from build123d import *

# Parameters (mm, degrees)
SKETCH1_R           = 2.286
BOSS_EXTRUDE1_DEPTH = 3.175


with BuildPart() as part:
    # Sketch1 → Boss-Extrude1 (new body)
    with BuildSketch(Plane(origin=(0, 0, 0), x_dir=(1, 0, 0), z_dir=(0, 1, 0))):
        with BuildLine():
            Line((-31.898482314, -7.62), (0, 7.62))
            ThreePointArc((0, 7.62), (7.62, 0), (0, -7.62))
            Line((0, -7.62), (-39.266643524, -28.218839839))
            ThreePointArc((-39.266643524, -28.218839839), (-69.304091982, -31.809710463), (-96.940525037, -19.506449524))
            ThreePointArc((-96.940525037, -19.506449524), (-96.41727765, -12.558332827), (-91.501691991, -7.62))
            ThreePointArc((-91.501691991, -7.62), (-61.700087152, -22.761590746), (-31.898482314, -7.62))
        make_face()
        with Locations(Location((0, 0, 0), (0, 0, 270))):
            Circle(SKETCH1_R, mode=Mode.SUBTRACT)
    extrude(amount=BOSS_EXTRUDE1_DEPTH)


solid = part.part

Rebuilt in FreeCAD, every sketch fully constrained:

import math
import FreeCAD as App
import Part
import Sketcher
Q = App.Units.Quantity

doc = App.newDocument("Part")
body = doc.addObject("PartDesign::Body", "Body")

sketch1 = body.newObject("Sketcher::SketchObject", "Sketch")
sketch1.AttachmentSupport = (doc.getObject("XZ_Plane"), [""])
sketch1.MapMode = "FlatFace"
sketch1.addGeometry(Part.LineSegment(App.Vector(0, -7.6, 0), App.Vector(-31.9, 7.6, 0)), False)
sketch1.addGeometry(Part.ArcOfCircle(Part.Circle(App.Vector(-61.7, -14.1, 0), App.Vector(0, 0, 1), 36.9), math.radians(36), math.radians(144)), False)
sketch1.addGeometry(Part.ArcOfCircle(Part.Circle(App.Vector(-87.3, 16.7, 0), App.Vector(0, 0, 1), 10.1), math.radians(164), math.radians(245)), False)
sketch1.addGeometry(Part.ArcOfCircle(Part.Circle(App.Vector(-60.8, -24.5, 0), App.Vector(0, 0, 1), 56.9), math.radians(68), math.radians(129)), False)
sketch1.addGeometry(Part.LineSegment(App.Vector(-39.3, 28.2, 0), App.Vector(0, 7.6, 0)), False)
sketch1.addGeometry(Part.ArcOfCircle(Part.Circle(App.Vector(0, 0, 0), App.Vector(0, 0, 1), 7.6), math.radians(-90), math.radians(90)), False)
sketch1.addGeometry(Part.Circle(App.Vector(0, 0, 0), App.Vector(0, 0, 1), 2.3), False)
sketch1.addConstraint(Sketcher.Constraint("Coincident", 0, 2, 1, 1))
sketch1.addConstraint(Sketcher.Constraint("Coincident", 1, 2, 2, 2))
sketch1.addConstraint(Sketcher.Constraint("Coincident", 2, 1, 3, 2))
sketch1.addConstraint(Sketcher.Constraint("Coincident", 3, 1, 4, 1))
sketch1.addConstraint(Sketcher.Constraint("Coincident", 4, 2, 5, 2))
sketch1.addConstraint(Sketcher.Constraint("Coincident", 5, 1, 0, 1))
sketch1.addConstraint(Sketcher.Constraint("Coincident", 5, 3, -1, 1))
sketch1.addConstraint(Sketcher.Constraint("Coincident", 6, 3, -1, 1))
sketch1.addConstraint(Sketcher.Constraint("PointOnObject", 4, 2, -2))
sketch1.addConstraint(Sketcher.Constraint("PointOnObject", 5, 1, -2))
sketch1.addConstraint(Sketcher.Constraint("Horizontal", 0, 2, 1, 2))
sketch1.addConstraint(Sketcher.Constraint("Horizontal", 1, 2, 4, 2))
sketch1.addConstraint(Sketcher.Constraint("Radius", 5, Q("0.3 in")))
sketch1.addConstraint(Sketcher.Constraint("Diameter", 6, Q("0.18 in")))
sketch1.addConstraint(Sketcher.Constraint("Radius", 1, Q("36.898482 mm")))
sketch1.addConstraint(Sketcher.Constraint("Radius", 3, Q("56.931468 mm")))
sketch1.addConstraint(Sketcher.Constraint("Radius", 2, Q("10.051144 mm")))
sketch1.addConstraint(Sketcher.Constraint("DistanceY", 2, 3, 2, 1, Q("0.1088999 in")))
sketch1.addConstraint(Sketcher.Constraint("DistanceX", 2, 3, 0, 2, Q("55.378998 mm")))
sketch1.addConstraint(Sketcher.Constraint("DistanceY", 1, 3, -1, 1, Q("14.136891 mm")))
sketch1.addConstraint(Sketcher.Constraint("DistanceX", 2, 3, -1, 1, Q("87.277481 mm")))
sketch1.addConstraint(Sketcher.Constraint("DistanceY", 3, 3, -1, 1, Q("24.483079 mm")))
sketch1.addConstraint(Sketcher.Constraint("DistanceY", -1, 1, 3, 1, Q("28.21884 mm")))
pad1 = body.newObject("PartDesign::Pad", "Pad")
pad1.Profile = sketch1
pad1.Length = Q("0.125 in")
pad1.Reversed = True

doc.recompute()
